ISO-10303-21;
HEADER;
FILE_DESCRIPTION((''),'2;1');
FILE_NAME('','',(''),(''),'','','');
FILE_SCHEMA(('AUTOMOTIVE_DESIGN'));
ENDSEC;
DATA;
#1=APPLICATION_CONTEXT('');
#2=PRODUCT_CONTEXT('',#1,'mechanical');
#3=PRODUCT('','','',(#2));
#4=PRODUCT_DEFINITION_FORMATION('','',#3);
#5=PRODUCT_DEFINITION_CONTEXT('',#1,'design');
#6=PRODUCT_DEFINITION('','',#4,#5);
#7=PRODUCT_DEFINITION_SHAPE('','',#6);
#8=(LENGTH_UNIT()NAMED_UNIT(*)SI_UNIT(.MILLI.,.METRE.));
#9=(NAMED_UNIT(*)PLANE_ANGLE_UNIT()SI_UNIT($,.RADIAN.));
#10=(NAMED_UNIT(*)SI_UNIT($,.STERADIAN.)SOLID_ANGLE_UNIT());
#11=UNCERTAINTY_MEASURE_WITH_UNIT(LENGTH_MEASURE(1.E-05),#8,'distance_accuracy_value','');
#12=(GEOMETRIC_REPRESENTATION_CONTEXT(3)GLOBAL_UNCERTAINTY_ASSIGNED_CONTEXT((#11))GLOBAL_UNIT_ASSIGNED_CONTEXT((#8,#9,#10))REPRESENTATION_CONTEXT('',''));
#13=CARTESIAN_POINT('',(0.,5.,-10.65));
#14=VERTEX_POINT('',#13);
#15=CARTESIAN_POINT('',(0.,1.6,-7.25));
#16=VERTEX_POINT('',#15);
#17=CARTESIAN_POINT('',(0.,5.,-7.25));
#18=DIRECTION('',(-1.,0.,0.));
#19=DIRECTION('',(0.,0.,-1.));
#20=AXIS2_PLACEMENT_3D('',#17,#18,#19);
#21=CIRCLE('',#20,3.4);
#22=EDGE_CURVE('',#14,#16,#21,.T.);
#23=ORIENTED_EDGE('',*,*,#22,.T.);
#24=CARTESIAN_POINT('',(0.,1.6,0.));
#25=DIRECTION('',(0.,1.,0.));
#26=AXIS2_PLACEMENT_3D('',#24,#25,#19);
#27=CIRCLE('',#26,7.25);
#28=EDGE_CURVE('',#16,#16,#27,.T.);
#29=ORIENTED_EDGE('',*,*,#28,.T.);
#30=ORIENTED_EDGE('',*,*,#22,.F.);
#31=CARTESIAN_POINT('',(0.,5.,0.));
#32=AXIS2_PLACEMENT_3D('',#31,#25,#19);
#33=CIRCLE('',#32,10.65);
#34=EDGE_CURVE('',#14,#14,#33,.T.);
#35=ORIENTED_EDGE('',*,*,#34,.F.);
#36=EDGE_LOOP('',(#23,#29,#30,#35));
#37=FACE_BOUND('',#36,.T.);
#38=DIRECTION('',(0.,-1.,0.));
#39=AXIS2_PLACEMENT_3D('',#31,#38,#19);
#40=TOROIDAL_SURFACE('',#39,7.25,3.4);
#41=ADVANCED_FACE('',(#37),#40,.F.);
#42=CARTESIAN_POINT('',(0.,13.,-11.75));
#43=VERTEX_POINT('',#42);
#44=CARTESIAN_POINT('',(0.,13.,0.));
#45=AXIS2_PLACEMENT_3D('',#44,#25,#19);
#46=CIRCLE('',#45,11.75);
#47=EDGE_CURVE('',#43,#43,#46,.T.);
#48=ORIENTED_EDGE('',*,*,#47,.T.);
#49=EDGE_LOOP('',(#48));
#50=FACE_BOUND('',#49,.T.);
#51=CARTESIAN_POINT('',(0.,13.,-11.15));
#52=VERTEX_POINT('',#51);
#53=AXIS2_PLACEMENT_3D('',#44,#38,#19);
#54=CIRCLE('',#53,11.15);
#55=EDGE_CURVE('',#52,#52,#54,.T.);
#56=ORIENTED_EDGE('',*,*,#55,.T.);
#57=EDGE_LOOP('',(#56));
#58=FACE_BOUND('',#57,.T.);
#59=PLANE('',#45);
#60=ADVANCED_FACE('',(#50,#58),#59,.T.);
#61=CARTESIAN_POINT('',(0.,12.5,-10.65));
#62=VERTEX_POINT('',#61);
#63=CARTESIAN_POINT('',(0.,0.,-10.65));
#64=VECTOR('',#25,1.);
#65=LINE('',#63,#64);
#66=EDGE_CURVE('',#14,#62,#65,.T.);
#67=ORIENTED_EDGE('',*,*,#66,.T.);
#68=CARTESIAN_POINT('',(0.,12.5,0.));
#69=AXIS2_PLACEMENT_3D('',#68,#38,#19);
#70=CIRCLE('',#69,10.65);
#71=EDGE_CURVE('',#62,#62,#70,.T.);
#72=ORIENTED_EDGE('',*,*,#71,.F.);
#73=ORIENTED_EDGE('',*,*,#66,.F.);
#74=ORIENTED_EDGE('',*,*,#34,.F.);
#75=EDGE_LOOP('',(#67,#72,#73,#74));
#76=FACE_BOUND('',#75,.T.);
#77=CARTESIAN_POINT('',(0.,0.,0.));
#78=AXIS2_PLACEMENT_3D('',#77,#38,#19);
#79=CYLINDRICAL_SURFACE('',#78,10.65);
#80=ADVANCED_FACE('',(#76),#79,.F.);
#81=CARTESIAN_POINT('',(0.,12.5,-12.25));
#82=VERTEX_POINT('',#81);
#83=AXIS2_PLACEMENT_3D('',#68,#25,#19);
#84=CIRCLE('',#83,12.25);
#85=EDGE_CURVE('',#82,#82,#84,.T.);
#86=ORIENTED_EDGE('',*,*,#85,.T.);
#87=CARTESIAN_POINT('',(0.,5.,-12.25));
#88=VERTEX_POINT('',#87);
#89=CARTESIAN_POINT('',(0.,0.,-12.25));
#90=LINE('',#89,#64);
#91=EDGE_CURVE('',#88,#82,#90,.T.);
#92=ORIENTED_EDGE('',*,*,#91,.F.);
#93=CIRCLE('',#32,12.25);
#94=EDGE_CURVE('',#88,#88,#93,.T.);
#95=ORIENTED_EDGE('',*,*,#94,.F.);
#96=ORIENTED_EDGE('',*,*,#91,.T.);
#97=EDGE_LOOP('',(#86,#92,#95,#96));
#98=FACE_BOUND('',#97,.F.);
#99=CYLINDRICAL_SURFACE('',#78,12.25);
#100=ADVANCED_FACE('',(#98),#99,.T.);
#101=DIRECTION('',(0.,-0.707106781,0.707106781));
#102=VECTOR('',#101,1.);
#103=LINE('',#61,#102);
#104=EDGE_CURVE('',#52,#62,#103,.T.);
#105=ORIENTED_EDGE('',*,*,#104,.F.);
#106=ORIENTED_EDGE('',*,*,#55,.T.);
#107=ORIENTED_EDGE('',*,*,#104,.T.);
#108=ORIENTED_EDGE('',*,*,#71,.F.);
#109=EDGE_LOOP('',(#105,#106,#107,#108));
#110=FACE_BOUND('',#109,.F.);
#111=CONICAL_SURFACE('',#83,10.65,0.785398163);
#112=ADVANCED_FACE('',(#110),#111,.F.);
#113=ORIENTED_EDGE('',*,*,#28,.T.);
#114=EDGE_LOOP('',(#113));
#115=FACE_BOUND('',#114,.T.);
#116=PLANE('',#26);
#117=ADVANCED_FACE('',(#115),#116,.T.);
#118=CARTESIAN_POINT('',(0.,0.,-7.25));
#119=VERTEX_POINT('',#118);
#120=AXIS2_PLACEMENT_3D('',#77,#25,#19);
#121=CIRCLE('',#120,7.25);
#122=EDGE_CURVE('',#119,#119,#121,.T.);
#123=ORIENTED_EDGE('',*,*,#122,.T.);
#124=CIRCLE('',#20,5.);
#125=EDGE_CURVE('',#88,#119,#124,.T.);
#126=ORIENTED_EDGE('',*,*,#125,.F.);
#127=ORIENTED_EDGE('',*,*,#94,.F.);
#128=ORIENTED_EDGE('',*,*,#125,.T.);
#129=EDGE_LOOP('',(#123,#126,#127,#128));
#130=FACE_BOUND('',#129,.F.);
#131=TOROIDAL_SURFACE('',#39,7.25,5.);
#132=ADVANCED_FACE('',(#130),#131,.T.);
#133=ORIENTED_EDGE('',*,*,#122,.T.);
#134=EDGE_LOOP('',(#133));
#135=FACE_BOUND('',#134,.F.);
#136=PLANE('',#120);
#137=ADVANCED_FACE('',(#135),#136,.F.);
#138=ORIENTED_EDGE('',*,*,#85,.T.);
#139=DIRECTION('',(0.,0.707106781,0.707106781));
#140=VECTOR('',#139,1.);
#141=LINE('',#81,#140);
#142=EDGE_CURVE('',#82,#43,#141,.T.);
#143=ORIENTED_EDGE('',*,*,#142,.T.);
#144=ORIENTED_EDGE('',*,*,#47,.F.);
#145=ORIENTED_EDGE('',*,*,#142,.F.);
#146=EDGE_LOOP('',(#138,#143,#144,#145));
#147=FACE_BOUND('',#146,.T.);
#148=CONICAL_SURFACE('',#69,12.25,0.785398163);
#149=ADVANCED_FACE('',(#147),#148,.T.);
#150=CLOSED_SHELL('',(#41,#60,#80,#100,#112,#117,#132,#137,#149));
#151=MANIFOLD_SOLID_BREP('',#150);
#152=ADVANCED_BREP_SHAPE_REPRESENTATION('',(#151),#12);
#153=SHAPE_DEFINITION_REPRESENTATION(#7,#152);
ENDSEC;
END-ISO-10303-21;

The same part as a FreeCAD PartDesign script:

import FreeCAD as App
import Part
import Sketcher

V = App.Vector


def edges_at(feature, points):
    """Names of the edges that pass closest to the given points."""
    edges = feature.Shape.Edges
    near = lambda p: min(range(len(edges)), key=lambda i: edges[i].distToShape(Part.Vertex(*p))[0])
    return sorted({f"Edge{near(p) + 1}" for p in points})


def faces_at(feature, points):
    """Names of the faces that lie closest to the given points."""
    faces = feature.Shape.Faces
    near = lambda p: min(range(len(faces)), key=lambda i: faces[i].distToShape(Part.Vertex(*p))[0])
    return sorted({f"Face{near(p) + 1}" for p in points})

doc = App.newDocument("Part")
params = doc.addObject("Spreadsheet::Sheet", "Params")
for row, (alias, value) in enumerate([
    ("sketch1_diameter", "24.5 mm"),
    ("pad1_length", "13 mm"),
    ("fillet_radius", "5 mm"),
    ("thickness_wall", "1.6 mm"),
    ("chamfer_size", "0.5 mm"),
], start=1):
    params.set(f"A{row}", alias)
    params.set(f"B{row}", "=" + value)
    params.setAlias(f"B{row}", alias)

body = doc.addObject("PartDesign::Body", "Body")

sketch1 = body.newObject("Sketcher::SketchObject", "Sketch")
sketch1.AttachmentSupport = (doc.getObject("XZ_Plane"), [""])
sketch1.MapMode = "FlatFace"
sketch1.addGeometry(Part.Circle(V(0, 0, 0), V(0, 0, 1), 12.25), False)
sketch1.addConstraint([
    Sketcher.Constraint("Coincident", 0, 3, -1, 1),
    Sketcher.Constraint("Diameter", 0, 24.5),
])
sketch1.setExpression("Constraints[1]", "Params.sketch1_diameter")
pad1 = body.newObject("PartDesign::Pad", "Pad")
pad1.Profile = sketch1
pad1.setExpression("Length", "Params.pad1_length")
pad1.Reversed = True
doc.recompute()

fillet = body.newObject("PartDesign::Fillet", "Fillet")
fillet.Base = (pad1, edges_at(pad1, [(0, 0, 12.25)]))
fillet.setExpression("Radius", "Params.fillet_radius")
doc.recompute()

thickness = body.newObject("PartDesign::Thickness", "Thickness")
thickness.Base = (fillet, faces_at(fillet, [(0, 13, 0)]))
thickness.setExpression("Value", "Params.thickness_wall")
thickness.Reversed = True
thickness.Join = "Intersection"
doc.recompute()

chamfer = body.newObject("PartDesign::Chamfer", "Chamfer")
chamfer.Base = (thickness, edges_at(thickness, [(0, 13, 12.25), (0, 13, 10.65)]))
chamfer.setExpression("Size", "Params.chamfer_size")

doc.recompute()
